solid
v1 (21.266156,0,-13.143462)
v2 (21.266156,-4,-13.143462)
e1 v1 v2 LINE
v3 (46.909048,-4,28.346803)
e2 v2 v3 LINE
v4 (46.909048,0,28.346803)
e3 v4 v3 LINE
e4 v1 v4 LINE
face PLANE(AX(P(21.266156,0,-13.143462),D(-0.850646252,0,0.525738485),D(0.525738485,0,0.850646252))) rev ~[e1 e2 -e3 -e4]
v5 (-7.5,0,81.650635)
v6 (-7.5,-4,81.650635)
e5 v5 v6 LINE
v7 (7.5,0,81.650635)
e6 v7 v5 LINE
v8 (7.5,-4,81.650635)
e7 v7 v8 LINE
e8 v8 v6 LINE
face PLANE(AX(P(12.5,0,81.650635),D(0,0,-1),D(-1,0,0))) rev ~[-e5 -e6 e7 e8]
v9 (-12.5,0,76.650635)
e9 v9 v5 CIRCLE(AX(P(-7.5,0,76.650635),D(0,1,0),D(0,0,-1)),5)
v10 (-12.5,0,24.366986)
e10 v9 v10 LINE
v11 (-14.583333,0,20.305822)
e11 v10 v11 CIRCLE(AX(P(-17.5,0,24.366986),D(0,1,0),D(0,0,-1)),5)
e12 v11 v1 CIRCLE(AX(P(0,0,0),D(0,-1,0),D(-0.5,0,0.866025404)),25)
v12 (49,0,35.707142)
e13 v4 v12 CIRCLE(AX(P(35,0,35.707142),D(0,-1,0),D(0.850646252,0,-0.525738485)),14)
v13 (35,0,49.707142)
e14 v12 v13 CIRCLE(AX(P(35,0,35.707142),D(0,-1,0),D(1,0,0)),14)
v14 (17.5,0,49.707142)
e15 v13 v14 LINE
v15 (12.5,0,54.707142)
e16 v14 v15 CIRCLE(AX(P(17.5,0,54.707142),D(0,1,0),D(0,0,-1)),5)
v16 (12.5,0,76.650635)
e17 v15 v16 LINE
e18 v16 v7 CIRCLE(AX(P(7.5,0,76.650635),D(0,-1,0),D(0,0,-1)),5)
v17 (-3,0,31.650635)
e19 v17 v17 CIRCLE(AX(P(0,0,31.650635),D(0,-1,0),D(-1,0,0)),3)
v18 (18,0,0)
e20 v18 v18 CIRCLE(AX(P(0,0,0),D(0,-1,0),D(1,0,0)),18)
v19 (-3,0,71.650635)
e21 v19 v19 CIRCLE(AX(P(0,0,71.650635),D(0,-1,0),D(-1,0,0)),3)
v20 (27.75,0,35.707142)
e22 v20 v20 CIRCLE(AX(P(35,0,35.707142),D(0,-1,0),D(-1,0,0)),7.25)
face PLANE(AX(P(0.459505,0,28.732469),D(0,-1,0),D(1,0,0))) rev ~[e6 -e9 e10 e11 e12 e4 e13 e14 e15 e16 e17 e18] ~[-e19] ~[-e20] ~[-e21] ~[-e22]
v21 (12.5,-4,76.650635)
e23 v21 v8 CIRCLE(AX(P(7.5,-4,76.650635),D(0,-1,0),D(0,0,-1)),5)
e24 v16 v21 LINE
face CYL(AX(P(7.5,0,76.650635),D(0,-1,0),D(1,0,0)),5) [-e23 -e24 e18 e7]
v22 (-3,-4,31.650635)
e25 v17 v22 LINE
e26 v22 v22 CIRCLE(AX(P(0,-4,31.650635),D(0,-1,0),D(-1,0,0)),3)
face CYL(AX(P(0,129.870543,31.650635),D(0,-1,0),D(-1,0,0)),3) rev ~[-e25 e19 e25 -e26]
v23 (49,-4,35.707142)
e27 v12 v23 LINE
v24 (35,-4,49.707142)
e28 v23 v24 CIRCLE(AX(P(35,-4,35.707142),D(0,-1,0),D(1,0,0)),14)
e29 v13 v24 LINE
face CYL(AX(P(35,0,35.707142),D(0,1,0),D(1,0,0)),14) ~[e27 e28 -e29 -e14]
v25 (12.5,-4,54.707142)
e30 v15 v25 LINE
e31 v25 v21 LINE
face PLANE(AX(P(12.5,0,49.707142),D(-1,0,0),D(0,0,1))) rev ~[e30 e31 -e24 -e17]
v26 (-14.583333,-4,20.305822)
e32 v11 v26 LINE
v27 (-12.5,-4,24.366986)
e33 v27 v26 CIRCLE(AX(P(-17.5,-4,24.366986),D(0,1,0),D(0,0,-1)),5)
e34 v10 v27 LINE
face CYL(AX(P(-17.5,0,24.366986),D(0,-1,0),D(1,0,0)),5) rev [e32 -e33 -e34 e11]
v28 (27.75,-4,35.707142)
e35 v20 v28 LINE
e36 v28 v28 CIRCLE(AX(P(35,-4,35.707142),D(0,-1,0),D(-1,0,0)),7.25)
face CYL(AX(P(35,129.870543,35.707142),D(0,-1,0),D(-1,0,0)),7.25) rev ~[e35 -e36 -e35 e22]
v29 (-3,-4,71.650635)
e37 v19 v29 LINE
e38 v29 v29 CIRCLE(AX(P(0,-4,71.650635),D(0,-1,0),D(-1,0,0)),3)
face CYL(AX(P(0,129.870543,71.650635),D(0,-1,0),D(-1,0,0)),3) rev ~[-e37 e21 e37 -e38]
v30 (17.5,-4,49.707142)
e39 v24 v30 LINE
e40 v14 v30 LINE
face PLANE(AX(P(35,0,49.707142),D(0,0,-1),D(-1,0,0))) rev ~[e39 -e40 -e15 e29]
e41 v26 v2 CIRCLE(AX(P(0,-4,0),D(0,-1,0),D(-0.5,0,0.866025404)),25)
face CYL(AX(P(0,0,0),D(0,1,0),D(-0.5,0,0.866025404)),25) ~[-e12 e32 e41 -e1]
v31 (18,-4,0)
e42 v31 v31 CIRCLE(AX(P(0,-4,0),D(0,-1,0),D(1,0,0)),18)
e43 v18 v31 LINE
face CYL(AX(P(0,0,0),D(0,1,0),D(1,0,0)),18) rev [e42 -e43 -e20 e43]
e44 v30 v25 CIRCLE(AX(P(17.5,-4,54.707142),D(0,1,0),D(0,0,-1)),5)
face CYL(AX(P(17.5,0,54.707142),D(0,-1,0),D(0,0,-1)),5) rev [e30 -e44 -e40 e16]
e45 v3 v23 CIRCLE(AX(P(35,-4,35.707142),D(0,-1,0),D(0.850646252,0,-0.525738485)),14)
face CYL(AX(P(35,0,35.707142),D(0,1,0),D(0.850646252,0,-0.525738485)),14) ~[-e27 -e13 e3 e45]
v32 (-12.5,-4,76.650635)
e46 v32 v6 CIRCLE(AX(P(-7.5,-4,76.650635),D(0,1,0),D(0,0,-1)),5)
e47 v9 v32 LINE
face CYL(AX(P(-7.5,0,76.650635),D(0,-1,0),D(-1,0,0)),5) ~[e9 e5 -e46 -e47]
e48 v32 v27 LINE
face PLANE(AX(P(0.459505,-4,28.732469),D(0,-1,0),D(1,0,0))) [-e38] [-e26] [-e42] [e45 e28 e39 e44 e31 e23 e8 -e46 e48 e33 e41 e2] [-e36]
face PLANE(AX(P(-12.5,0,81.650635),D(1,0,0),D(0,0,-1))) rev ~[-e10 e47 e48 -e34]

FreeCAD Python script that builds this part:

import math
import FreeCAD as App
import Part
import Sketcher

V = App.Vector


def edges_at(feature, points):
    """Names of the edges that pass closest to the given points."""
    edges = feature.Shape.Edges
    near = lambda p: min(range(len(edges)), key=lambda i: edges[i].distToShape(Part.Vertex(*p))[0])
    return sorted({f"Edge{near(p) + 1}" for p in points})

doc = App.newDocument("Part")
body = doc.addObject("PartDesign::Body", "Body")

sketch1 = doc.addObject("Sketcher::SketchObject", "Sketch")
body.addObject(sketch1)
sketch1.AttachmentSupport = (doc.XZ_Plane, [""])
sketch1.MapMode = "FlatFace"
sketch1.addGeometry(Part.LineSegment(V(-12.5, 81.650635, 0), V(-12.5, 21.650635, 0)), False)
sketch1.addGeometry(Part.ArcOfCircle(Part.Circle(V(0, 0, 0), V(0, 0, 1), 25), math.radians(120), math.radians(328.282029)), False)
sketch1.addGeometry(Part.LineSegment(V(21.266156, -13.143462, 0), V(46.909048, 28.346803, 0)), False)
sketch1.addGeometry(Part.ArcOfCircle(Part.Circle(V(35, 35.707142, 0), V(0, 0, 1), 14), math.radians(-31.717971), math.radians(0)), False)
sketch1.addGeometry(Part.ArcOfCircle(Part.Circle(V(35, 35.707142, 0), V(0, 0, 1), 14), math.radians(0), math.radians(90)), False)
sketch1.addGeometry(Part.LineSegment(V(35, 49.707142, 0), V(12.5, 49.707142, 0)), False)
sketch1.addGeometry(Part.LineSegment(V(12.5, 49.707142, 0), V(12.5, 81.650635, 0)), False)
sketch1.addGeometry(Part.LineSegment(V(12.5, 81.650635, 0), V(-12.5, 81.650635, 0)), False)
sketch1.addGeometry(Part.Circle(V(0, 0, 0), V(0, 0, 1), 18), False)
sketch1.addConstraint(Sketcher.Constraint("Coincident", 0, 2, 1, 1))
sketch1.addConstraint(Sketcher.Constraint("Tangent", 1, 2, 2, 1))
sketch1.addConstraint(Sketcher.Constraint("Tangent", 2, 2, 3, 1))
sketch1.addConstraint(Sketcher.Constraint("Tangent", 3, 2, 4, 1))
sketch1.addConstraint(Sketcher.Constraint("Tangent", 4, 2, 5, 1))
sketch1.addConstraint(Sketcher.Constraint("Coincident", 5, 2, 6, 1))
sketch1.addConstraint(Sketcher.Constraint("Coincident", 6, 2, 7, 1))
sketch1.addConstraint(Sketcher.Constraint("Coincident", 7, 2, 0, 1))
sketch1.addConstraint(Sketcher.Constraint("Vertical", 0))
sketch1.addConstraint(Sketcher.Constraint("Horizontal", 5))
sketch1.addConstraint(Sketcher.Constraint("Vertical", 6))
sketch1.addConstraint(Sketcher.Constraint("Horizontal", 7))
sketch1.addConstraint(Sketcher.Constraint("Coincident", 1, 3, -1, 1))
sketch1.addConstraint(Sketcher.Constraint("Coincident", 8, 3, -1, 1))
sketch1.addConstraint(Sketcher.Constraint("Equal", 3, 4))
sketch1.addConstraint(Sketcher.Constraint("Horizontal", 4, 3, 3, 2))
sketch1.addConstraint(Sketcher.Constraint("Diameter", 8, 36.0))
sketch1.addConstraint(Sketcher.Constraint("Radius", 1, 25.0))
sketch1.addConstraint(Sketcher.Constraint("Radius", 3, 14.0))
sketch1.addConstraint(Sketcher.Constraint("DistanceX", 7, 2, 7, 1, 25.0))
sketch1.addConstraint(Sketcher.Constraint("DistanceY", 0, 2, 0, 1, 60.0))
sketch1.addConstraint(Sketcher.Constraint("DistanceX", 5, 2, 5, 1, 22.5))
sketch1.addConstraint(Sketcher.Constraint("DistanceX", -1, 1, 3, 3, 35.0))
sketch1.addConstraint(Sketcher.Constraint("DistanceY", 6, 1, 6, 2, 31.943493))
pad1 = doc.addObject("PartDesign::Pad", "Pad")
body.addObject(pad1)
pad1.Profile = sketch1
pad1.Length = 4
doc.recompute()

fillet = doc.addObject("PartDesign::Fillet", "Fillet")
body.addObject(fillet)
fillet.Base = (pad1, edges_at(pad1, [
    (12.5, -2, 81.651),
    (12.5, -2, 49.707),
    (21.266, -2, -13.143),
    (-12.5, -2, 21.651),
    (-12.5, -2, 81.651),
]))
fillet.Radius = 5

sketch2 = doc.addObject("Sketcher::SketchObject", "Sketch001")
body.addObject(sketch2)
sketch2.AttachmentSupport = (doc.XZ_Plane, [""])
sketch2.MapMode = "FlatFace"
sketch2.addGeometry(Part.Circle(V(0, 31.650635, 0), V(0, 0, 1), 3), False)
sketch2.addGeometry(Part.Circle(V(0, 71.650635, 0), V(0, 0, 1), 3), False)
sketch2.addConstraint(Sketcher.Constraint("Equal", 0, 1))
sketch2.addConstraint(Sketcher.Constraint("PointOnObject", 0, 3, -2))
sketch2.addConstraint(Sketcher.Constraint("PointOnObject", 1, 3, -2))
sketch2.addConstraint(Sketcher.Constraint("Diameter", 0, 6.0))
sketch2.addConstraint(Sketcher.Constraint("DistanceY", 0, 3, 1, 3, 40.0))
sketch2.addConstraint(Sketcher.Constraint("DistanceY", -1, 1, 0, 3, 31.650635))
doc.recompute()
hole = doc.addObject("PartDesign::Hole", "Hole")
body.addObject(hole)
hole.Profile = sketch2
hole.ThreadType = "None"
hole.Diameter = 6
hole.DepthType = "ThroughAll"
hole.Reversed = True

sketch3 = doc.addObject("Sketcher::SketchObject", "Sketch002")
body.addObject(sketch3)
sketch3.AttachmentSupport = (doc.XZ_Plane, [""])
sketch3.MapMode = "FlatFace"
sketch3.addGeometry(Part.Circle(V(35, 35.707142, 0), V(0, 0, 1), 7.25), False)
sketch3.addConstraint(Sketcher.Constraint("Diameter", 0, 14.5))
sketch3.addConstraint(Sketcher.Constraint("DistanceX", -1, 1, 0, 3, 35.0))
sketch3.addConstraint(Sketcher.Constraint("DistanceY", -1, 1, 0, 3, 35.707142))
doc.recompute()
hole2 = doc.addObject("PartDesign::Hole", "Hole001")
body.addObject(hole2)
hole2.Profile = sketch3
hole2.ThreadType = "None"
hole2.Diameter = 14.5
hole2.DepthType = "ThroughAll"
hole2.Reversed = True

doc.recompute()
